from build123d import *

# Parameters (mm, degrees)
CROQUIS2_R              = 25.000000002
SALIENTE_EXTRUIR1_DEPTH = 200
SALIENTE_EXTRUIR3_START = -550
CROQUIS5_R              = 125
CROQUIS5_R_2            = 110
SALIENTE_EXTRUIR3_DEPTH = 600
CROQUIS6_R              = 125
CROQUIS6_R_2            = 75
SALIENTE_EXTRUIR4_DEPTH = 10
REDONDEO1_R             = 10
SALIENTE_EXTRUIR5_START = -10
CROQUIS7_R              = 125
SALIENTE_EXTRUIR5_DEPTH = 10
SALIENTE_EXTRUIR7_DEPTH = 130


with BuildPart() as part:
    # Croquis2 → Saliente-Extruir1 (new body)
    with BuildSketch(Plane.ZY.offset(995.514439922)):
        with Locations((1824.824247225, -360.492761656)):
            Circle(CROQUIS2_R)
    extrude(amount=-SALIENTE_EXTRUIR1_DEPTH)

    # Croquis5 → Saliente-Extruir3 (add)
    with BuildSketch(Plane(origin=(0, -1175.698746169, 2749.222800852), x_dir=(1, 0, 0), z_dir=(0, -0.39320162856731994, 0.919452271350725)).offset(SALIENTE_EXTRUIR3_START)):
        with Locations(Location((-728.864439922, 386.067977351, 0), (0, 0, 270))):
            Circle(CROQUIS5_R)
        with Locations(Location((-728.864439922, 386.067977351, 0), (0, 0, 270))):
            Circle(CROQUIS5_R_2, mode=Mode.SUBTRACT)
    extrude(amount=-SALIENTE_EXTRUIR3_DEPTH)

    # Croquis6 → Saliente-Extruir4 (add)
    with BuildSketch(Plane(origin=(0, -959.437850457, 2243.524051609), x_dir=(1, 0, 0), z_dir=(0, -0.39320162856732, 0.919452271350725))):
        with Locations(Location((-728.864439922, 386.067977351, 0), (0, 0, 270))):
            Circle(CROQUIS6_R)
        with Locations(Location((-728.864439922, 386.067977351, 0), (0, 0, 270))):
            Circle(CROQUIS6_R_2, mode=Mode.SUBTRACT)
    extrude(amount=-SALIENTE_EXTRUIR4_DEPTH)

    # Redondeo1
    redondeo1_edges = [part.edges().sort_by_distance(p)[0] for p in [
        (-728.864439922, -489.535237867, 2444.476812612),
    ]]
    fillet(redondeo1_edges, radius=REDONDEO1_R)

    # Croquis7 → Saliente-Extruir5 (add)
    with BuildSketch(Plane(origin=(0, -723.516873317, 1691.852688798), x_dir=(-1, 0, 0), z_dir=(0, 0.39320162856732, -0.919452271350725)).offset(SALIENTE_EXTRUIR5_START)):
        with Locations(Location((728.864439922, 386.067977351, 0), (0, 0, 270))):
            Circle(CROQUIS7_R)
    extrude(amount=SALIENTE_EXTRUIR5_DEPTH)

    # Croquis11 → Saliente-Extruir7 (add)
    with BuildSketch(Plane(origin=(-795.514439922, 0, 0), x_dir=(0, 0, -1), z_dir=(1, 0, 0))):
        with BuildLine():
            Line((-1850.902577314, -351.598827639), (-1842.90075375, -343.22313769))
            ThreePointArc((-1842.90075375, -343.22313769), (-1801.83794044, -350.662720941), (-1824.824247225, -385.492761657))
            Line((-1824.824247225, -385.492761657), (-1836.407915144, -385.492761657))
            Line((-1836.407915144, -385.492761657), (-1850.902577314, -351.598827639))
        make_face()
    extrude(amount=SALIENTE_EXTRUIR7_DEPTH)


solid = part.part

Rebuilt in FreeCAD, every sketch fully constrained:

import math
import FreeCAD as App
import Part
import Sketcher
Q = App.Units.Quantity


def edges_at(feature, points):
    """Names of the edges that pass closest to the given points."""
    edges = feature.Shape.Edges
    near = lambda p: min(range(len(edges)), key=lambda i: edges[i].distToShape(Part.Vertex(*p))[0])
    return sorted({f"Edge{near(p) + 1}" for p in points})

doc = App.newDocument("Part")
params = doc.addObject("Spreadsheet::Sheet", "Params")
for row, (alias, value) in enumerate([
    ("sketch1_diameter", "50 mm"),
    ("pad1_length", "200 mm"),
    ("sketch2_diameter", "250 mm"),
    ("sketch2_diameter2", "220 mm"),
    ("pad2_length", "600 mm"),
    ("sketch3_diameter", "250 mm"),
    ("sketch3_diameter2", "150 mm"),
    ("pad3_length", "10 mm"),
    ("fillet_radius", "10 mm"),
    ("sketch4_diameter", "250 mm"),
    ("pad4_length", "10 mm"),
    ("sketch5_radius", "25 mm"),
    ("pad5_length", "130 mm"),
], start=1):
    params.set(f"A{row}", alias)
    params.set(f"B{row}", "=" + value)
    params.setAlias(f"B{row}", alias)

body = doc.addObject("PartDesign::Body", "Body")

sketch1 = doc.addObject("Sketcher::SketchObject", "Sketch")
body.addObject(sketch1)
sketch1.AttachmentSupport = (doc.YZ_Plane, [""])
sketch1.MapMode = "FlatFace"
sketch1.AttachmentOffset = App.Placement(App.Vector(0, 0, -995.51444), App.Rotation())
sketch1.addGeometry(Part.Circle(App.Vector(-360.492762, 1824.824247, 0), App.Vector(0, 0, 1), 25), False)
sketch1.addConstraint([
    Sketcher.Constraint("Diameter", 0, Q("50 mm")),
    Sketcher.Constraint("DistanceX", 0, 3, -1, 1, Q("360.492762 mm")),
    Sketcher.Constraint("DistanceY", -1, 1, 0, 3, Q("1824.824247 mm")),
])
sketch1.setExpression("Constraints[0]", "Params.sketch1_diameter")
pad1 = doc.addObject("PartDesign::Pad", "Pad")
body.addObject(pad1)
pad1.Profile = sketch1
pad1.setExpression("Length", "Params.pad1_length")

sketch2 = doc.addObject("Sketcher::SketchObject", "Sketch001")
body.addObject(sketch2)
sketch2.Placement = App.Placement(App.Vector(0, -959.43785, 2243.524052), App.Rotation(App.Vector(1, 0, 0), App.Vector(0, 0.919452271, 0.393201629), App.Vector(0, -0.393201629, 0.919452271), "ZXY"))
sketch2.addGeometry([
    Part.Circle(App.Vector(-728.86444, 386.067977, 0), App.Vector(0, 0, 1), 125),
    Part.Circle(App.Vector(-728.86444, 386.067977, 0), App.Vector(0, 0, 1), 110),
], False)
sketch2.addConstraint([
    Sketcher.Constraint("Coincident", 1, 3, 0, 3),
    Sketcher.Constraint("Diameter", 0, Q("250 mm")),
    Sketcher.Constraint("Diameter", 1, Q("220 mm")),
    Sketcher.Constraint("DistanceX", 0, 3, -1, 1, Q("728.86444 mm")),
    Sketcher.Constraint("DistanceY", -1, 1, 0, 3, Q("386.067977 mm")),
])
sketch2.setExpression("Constraints[1]", "Params.sketch2_diameter")
sketch2.setExpression("Constraints[2]", "Params.sketch2_diameter2")
pad2 = doc.addObject("PartDesign::Pad", "Pad001")
body.addObject(pad2)
pad2.Profile = sketch2
pad2.setExpression("Length", "Params.pad2_length")
pad2.Reversed = True

sketch3 = doc.addObject("Sketcher::SketchObject", "Sketch002")
body.addObject(sketch3)
sketch3.Placement = App.Placement(App.Vector(0, -959.43785, 2243.524052), App.Rotation(App.Vector(1, 0, 0), App.Vector(0, 0.919452271, 0.393201629), App.Vector(0, -0.393201629, 0.919452271), "ZXY"))
sketch3.addGeometry([
    Part.Circle(App.Vector(-728.86444, 386.067977, 0), App.Vector(0, 0, 1), 125),
    Part.Circle(App.Vector(-728.86444, 386.067977, 0), App.Vector(0, 0, 1), 75),
], False)
sketch3.addConstraint([
    Sketcher.Constraint("Coincident", 1, 3, 0, 3),
    Sketcher.Constraint("Diameter", 0, Q("250 mm")),
    Sketcher.Constraint("Diameter", 1, Q("150 mm")),
    Sketcher.Constraint("DistanceX", 0, 3, -1, 1, Q("728.86444 mm")),
    Sketcher.Constraint("DistanceY", -1, 1, 0, 3, Q("386.067977 mm")),
])
sketch3.setExpression("Constraints[1]", "Params.sketch3_diameter")
sketch3.setExpression("Constraints[2]", "Params.sketch3_diameter2")
pad3 = doc.addObject("PartDesign::Pad", "Pad002")
body.addObject(pad3)
pad3.Profile = sketch3
pad3.setExpression("Length", "Params.pad3_length")
pad3.Reversed = True
doc.recompute()

fillet = doc.addObject("PartDesign::Fillet", "Fillet")
body.addObject(fillet)
fillet.Base = (pad3, edges_at(pad3, [(-728.864, -489.535, 2444.477)]))
fillet.setExpression("Radius", "Params.fillet_radius")

sketch4 = doc.addObject("Sketcher::SketchObject", "Sketch003")
body.addObject(sketch4)
sketch4.Placement = App.Placement(App.Vector(0, -727.44889, 1701.047212), App.Rotation(App.Vector(-1, 0, 0), App.Vector(0, 0.919452271, 0.393201629), App.Vector(0, 0.393201629, -0.919452271), "ZXY"))
sketch4.addGeometry(Part.Circle(App.Vector(728.86444, 386.067977, 0), App.Vector(0, 0, 1), 125), False)
sketch4.addConstraint([
    Sketcher.Constraint("Diameter", 0, Q("250 mm")),
    Sketcher.Constraint("DistanceX", -1, 1, 0, 3, Q("728.86444 mm")),
    Sketcher.Constraint("DistanceY", -1, 1, 0, 3, Q("386.067977 mm")),
])
sketch4.setExpression("Constraints[0]", "Params.sketch4_diameter")
pad4 = doc.addObject("PartDesign::Pad", "Pad003")
body.addObject(pad4)
pad4.Profile = sketch4
pad4.setExpression("Length", "Params.pad4_length")

sketch5 = doc.addObject("Sketcher::SketchObject", "Sketch004")
body.addObject(sketch5)
sketch5.AttachmentSupport = (doc.YZ_Plane, [""])
sketch5.MapMode = "FlatFace"
sketch5.AttachmentOffset = App.Placement(App.Vector(0, 0, -795.51444), App.Rotation())
sketch5.addGeometry([
    Part.LineSegment(App.Vector(-343.223138, 1842.900754, 0), App.Vector(-351.598828, 1850.902577, 0)),
    Part.LineSegment(App.Vector(-351.598828, 1850.902577, 0), App.Vector(-385.492762, 1836.407915, 0)),
    Part.LineSegment(App.Vector(-385.492762, 1836.407915, 0), App.Vector(-385.492762, 1824.824247, 0)),
    Part.ArcOfCircle(Part.Circle(App.Vector(-360.492762, 1824.824247, 0), App.Vector(0, 0, 1), 25), math.radians(180), math.radians(406.307723)),
], False)
sketch5.addConstraint([
    Sketcher.Constraint("Coincident", 0, 2, 1, 1),
    Sketcher.Constraint("Coincident", 1, 2, 2, 1),
    Sketcher.Constraint("Tangent", 2, 2, 3, 1),
    Sketcher.Constraint("Tangent", 3, 2, 0, 1),
    Sketcher.Constraint("Vertical", 2),
    Sketcher.Constraint("Radius", 3, Q("25 mm")),
    Sketcher.Constraint("Distance", 1, Q("36.863179 mm")),
    Sketcher.Constraint("DistanceY", 2, 2, 2, 1, Q("11.583668 mm")),
    Sketcher.Constraint("DistanceX", 3, 3, -1, 1, Q("360.492762 mm")),
    Sketcher.Constraint("DistanceY", 3, 3, 0, 2, Q("26.07833 mm")),
    Sketcher.Constraint("DistanceY", -1, 1, 3, 3, Q("1824.824247 mm")),
])
sketch5.setExpression("Constraints[5]", "Params.sketch5_radius")
pad5 = doc.addObject("PartDesign::Pad", "Pad004")
body.addObject(pad5)
pad5.Profile = sketch5
pad5.setExpression("Length", "Params.pad5_length")

doc.recompute()
